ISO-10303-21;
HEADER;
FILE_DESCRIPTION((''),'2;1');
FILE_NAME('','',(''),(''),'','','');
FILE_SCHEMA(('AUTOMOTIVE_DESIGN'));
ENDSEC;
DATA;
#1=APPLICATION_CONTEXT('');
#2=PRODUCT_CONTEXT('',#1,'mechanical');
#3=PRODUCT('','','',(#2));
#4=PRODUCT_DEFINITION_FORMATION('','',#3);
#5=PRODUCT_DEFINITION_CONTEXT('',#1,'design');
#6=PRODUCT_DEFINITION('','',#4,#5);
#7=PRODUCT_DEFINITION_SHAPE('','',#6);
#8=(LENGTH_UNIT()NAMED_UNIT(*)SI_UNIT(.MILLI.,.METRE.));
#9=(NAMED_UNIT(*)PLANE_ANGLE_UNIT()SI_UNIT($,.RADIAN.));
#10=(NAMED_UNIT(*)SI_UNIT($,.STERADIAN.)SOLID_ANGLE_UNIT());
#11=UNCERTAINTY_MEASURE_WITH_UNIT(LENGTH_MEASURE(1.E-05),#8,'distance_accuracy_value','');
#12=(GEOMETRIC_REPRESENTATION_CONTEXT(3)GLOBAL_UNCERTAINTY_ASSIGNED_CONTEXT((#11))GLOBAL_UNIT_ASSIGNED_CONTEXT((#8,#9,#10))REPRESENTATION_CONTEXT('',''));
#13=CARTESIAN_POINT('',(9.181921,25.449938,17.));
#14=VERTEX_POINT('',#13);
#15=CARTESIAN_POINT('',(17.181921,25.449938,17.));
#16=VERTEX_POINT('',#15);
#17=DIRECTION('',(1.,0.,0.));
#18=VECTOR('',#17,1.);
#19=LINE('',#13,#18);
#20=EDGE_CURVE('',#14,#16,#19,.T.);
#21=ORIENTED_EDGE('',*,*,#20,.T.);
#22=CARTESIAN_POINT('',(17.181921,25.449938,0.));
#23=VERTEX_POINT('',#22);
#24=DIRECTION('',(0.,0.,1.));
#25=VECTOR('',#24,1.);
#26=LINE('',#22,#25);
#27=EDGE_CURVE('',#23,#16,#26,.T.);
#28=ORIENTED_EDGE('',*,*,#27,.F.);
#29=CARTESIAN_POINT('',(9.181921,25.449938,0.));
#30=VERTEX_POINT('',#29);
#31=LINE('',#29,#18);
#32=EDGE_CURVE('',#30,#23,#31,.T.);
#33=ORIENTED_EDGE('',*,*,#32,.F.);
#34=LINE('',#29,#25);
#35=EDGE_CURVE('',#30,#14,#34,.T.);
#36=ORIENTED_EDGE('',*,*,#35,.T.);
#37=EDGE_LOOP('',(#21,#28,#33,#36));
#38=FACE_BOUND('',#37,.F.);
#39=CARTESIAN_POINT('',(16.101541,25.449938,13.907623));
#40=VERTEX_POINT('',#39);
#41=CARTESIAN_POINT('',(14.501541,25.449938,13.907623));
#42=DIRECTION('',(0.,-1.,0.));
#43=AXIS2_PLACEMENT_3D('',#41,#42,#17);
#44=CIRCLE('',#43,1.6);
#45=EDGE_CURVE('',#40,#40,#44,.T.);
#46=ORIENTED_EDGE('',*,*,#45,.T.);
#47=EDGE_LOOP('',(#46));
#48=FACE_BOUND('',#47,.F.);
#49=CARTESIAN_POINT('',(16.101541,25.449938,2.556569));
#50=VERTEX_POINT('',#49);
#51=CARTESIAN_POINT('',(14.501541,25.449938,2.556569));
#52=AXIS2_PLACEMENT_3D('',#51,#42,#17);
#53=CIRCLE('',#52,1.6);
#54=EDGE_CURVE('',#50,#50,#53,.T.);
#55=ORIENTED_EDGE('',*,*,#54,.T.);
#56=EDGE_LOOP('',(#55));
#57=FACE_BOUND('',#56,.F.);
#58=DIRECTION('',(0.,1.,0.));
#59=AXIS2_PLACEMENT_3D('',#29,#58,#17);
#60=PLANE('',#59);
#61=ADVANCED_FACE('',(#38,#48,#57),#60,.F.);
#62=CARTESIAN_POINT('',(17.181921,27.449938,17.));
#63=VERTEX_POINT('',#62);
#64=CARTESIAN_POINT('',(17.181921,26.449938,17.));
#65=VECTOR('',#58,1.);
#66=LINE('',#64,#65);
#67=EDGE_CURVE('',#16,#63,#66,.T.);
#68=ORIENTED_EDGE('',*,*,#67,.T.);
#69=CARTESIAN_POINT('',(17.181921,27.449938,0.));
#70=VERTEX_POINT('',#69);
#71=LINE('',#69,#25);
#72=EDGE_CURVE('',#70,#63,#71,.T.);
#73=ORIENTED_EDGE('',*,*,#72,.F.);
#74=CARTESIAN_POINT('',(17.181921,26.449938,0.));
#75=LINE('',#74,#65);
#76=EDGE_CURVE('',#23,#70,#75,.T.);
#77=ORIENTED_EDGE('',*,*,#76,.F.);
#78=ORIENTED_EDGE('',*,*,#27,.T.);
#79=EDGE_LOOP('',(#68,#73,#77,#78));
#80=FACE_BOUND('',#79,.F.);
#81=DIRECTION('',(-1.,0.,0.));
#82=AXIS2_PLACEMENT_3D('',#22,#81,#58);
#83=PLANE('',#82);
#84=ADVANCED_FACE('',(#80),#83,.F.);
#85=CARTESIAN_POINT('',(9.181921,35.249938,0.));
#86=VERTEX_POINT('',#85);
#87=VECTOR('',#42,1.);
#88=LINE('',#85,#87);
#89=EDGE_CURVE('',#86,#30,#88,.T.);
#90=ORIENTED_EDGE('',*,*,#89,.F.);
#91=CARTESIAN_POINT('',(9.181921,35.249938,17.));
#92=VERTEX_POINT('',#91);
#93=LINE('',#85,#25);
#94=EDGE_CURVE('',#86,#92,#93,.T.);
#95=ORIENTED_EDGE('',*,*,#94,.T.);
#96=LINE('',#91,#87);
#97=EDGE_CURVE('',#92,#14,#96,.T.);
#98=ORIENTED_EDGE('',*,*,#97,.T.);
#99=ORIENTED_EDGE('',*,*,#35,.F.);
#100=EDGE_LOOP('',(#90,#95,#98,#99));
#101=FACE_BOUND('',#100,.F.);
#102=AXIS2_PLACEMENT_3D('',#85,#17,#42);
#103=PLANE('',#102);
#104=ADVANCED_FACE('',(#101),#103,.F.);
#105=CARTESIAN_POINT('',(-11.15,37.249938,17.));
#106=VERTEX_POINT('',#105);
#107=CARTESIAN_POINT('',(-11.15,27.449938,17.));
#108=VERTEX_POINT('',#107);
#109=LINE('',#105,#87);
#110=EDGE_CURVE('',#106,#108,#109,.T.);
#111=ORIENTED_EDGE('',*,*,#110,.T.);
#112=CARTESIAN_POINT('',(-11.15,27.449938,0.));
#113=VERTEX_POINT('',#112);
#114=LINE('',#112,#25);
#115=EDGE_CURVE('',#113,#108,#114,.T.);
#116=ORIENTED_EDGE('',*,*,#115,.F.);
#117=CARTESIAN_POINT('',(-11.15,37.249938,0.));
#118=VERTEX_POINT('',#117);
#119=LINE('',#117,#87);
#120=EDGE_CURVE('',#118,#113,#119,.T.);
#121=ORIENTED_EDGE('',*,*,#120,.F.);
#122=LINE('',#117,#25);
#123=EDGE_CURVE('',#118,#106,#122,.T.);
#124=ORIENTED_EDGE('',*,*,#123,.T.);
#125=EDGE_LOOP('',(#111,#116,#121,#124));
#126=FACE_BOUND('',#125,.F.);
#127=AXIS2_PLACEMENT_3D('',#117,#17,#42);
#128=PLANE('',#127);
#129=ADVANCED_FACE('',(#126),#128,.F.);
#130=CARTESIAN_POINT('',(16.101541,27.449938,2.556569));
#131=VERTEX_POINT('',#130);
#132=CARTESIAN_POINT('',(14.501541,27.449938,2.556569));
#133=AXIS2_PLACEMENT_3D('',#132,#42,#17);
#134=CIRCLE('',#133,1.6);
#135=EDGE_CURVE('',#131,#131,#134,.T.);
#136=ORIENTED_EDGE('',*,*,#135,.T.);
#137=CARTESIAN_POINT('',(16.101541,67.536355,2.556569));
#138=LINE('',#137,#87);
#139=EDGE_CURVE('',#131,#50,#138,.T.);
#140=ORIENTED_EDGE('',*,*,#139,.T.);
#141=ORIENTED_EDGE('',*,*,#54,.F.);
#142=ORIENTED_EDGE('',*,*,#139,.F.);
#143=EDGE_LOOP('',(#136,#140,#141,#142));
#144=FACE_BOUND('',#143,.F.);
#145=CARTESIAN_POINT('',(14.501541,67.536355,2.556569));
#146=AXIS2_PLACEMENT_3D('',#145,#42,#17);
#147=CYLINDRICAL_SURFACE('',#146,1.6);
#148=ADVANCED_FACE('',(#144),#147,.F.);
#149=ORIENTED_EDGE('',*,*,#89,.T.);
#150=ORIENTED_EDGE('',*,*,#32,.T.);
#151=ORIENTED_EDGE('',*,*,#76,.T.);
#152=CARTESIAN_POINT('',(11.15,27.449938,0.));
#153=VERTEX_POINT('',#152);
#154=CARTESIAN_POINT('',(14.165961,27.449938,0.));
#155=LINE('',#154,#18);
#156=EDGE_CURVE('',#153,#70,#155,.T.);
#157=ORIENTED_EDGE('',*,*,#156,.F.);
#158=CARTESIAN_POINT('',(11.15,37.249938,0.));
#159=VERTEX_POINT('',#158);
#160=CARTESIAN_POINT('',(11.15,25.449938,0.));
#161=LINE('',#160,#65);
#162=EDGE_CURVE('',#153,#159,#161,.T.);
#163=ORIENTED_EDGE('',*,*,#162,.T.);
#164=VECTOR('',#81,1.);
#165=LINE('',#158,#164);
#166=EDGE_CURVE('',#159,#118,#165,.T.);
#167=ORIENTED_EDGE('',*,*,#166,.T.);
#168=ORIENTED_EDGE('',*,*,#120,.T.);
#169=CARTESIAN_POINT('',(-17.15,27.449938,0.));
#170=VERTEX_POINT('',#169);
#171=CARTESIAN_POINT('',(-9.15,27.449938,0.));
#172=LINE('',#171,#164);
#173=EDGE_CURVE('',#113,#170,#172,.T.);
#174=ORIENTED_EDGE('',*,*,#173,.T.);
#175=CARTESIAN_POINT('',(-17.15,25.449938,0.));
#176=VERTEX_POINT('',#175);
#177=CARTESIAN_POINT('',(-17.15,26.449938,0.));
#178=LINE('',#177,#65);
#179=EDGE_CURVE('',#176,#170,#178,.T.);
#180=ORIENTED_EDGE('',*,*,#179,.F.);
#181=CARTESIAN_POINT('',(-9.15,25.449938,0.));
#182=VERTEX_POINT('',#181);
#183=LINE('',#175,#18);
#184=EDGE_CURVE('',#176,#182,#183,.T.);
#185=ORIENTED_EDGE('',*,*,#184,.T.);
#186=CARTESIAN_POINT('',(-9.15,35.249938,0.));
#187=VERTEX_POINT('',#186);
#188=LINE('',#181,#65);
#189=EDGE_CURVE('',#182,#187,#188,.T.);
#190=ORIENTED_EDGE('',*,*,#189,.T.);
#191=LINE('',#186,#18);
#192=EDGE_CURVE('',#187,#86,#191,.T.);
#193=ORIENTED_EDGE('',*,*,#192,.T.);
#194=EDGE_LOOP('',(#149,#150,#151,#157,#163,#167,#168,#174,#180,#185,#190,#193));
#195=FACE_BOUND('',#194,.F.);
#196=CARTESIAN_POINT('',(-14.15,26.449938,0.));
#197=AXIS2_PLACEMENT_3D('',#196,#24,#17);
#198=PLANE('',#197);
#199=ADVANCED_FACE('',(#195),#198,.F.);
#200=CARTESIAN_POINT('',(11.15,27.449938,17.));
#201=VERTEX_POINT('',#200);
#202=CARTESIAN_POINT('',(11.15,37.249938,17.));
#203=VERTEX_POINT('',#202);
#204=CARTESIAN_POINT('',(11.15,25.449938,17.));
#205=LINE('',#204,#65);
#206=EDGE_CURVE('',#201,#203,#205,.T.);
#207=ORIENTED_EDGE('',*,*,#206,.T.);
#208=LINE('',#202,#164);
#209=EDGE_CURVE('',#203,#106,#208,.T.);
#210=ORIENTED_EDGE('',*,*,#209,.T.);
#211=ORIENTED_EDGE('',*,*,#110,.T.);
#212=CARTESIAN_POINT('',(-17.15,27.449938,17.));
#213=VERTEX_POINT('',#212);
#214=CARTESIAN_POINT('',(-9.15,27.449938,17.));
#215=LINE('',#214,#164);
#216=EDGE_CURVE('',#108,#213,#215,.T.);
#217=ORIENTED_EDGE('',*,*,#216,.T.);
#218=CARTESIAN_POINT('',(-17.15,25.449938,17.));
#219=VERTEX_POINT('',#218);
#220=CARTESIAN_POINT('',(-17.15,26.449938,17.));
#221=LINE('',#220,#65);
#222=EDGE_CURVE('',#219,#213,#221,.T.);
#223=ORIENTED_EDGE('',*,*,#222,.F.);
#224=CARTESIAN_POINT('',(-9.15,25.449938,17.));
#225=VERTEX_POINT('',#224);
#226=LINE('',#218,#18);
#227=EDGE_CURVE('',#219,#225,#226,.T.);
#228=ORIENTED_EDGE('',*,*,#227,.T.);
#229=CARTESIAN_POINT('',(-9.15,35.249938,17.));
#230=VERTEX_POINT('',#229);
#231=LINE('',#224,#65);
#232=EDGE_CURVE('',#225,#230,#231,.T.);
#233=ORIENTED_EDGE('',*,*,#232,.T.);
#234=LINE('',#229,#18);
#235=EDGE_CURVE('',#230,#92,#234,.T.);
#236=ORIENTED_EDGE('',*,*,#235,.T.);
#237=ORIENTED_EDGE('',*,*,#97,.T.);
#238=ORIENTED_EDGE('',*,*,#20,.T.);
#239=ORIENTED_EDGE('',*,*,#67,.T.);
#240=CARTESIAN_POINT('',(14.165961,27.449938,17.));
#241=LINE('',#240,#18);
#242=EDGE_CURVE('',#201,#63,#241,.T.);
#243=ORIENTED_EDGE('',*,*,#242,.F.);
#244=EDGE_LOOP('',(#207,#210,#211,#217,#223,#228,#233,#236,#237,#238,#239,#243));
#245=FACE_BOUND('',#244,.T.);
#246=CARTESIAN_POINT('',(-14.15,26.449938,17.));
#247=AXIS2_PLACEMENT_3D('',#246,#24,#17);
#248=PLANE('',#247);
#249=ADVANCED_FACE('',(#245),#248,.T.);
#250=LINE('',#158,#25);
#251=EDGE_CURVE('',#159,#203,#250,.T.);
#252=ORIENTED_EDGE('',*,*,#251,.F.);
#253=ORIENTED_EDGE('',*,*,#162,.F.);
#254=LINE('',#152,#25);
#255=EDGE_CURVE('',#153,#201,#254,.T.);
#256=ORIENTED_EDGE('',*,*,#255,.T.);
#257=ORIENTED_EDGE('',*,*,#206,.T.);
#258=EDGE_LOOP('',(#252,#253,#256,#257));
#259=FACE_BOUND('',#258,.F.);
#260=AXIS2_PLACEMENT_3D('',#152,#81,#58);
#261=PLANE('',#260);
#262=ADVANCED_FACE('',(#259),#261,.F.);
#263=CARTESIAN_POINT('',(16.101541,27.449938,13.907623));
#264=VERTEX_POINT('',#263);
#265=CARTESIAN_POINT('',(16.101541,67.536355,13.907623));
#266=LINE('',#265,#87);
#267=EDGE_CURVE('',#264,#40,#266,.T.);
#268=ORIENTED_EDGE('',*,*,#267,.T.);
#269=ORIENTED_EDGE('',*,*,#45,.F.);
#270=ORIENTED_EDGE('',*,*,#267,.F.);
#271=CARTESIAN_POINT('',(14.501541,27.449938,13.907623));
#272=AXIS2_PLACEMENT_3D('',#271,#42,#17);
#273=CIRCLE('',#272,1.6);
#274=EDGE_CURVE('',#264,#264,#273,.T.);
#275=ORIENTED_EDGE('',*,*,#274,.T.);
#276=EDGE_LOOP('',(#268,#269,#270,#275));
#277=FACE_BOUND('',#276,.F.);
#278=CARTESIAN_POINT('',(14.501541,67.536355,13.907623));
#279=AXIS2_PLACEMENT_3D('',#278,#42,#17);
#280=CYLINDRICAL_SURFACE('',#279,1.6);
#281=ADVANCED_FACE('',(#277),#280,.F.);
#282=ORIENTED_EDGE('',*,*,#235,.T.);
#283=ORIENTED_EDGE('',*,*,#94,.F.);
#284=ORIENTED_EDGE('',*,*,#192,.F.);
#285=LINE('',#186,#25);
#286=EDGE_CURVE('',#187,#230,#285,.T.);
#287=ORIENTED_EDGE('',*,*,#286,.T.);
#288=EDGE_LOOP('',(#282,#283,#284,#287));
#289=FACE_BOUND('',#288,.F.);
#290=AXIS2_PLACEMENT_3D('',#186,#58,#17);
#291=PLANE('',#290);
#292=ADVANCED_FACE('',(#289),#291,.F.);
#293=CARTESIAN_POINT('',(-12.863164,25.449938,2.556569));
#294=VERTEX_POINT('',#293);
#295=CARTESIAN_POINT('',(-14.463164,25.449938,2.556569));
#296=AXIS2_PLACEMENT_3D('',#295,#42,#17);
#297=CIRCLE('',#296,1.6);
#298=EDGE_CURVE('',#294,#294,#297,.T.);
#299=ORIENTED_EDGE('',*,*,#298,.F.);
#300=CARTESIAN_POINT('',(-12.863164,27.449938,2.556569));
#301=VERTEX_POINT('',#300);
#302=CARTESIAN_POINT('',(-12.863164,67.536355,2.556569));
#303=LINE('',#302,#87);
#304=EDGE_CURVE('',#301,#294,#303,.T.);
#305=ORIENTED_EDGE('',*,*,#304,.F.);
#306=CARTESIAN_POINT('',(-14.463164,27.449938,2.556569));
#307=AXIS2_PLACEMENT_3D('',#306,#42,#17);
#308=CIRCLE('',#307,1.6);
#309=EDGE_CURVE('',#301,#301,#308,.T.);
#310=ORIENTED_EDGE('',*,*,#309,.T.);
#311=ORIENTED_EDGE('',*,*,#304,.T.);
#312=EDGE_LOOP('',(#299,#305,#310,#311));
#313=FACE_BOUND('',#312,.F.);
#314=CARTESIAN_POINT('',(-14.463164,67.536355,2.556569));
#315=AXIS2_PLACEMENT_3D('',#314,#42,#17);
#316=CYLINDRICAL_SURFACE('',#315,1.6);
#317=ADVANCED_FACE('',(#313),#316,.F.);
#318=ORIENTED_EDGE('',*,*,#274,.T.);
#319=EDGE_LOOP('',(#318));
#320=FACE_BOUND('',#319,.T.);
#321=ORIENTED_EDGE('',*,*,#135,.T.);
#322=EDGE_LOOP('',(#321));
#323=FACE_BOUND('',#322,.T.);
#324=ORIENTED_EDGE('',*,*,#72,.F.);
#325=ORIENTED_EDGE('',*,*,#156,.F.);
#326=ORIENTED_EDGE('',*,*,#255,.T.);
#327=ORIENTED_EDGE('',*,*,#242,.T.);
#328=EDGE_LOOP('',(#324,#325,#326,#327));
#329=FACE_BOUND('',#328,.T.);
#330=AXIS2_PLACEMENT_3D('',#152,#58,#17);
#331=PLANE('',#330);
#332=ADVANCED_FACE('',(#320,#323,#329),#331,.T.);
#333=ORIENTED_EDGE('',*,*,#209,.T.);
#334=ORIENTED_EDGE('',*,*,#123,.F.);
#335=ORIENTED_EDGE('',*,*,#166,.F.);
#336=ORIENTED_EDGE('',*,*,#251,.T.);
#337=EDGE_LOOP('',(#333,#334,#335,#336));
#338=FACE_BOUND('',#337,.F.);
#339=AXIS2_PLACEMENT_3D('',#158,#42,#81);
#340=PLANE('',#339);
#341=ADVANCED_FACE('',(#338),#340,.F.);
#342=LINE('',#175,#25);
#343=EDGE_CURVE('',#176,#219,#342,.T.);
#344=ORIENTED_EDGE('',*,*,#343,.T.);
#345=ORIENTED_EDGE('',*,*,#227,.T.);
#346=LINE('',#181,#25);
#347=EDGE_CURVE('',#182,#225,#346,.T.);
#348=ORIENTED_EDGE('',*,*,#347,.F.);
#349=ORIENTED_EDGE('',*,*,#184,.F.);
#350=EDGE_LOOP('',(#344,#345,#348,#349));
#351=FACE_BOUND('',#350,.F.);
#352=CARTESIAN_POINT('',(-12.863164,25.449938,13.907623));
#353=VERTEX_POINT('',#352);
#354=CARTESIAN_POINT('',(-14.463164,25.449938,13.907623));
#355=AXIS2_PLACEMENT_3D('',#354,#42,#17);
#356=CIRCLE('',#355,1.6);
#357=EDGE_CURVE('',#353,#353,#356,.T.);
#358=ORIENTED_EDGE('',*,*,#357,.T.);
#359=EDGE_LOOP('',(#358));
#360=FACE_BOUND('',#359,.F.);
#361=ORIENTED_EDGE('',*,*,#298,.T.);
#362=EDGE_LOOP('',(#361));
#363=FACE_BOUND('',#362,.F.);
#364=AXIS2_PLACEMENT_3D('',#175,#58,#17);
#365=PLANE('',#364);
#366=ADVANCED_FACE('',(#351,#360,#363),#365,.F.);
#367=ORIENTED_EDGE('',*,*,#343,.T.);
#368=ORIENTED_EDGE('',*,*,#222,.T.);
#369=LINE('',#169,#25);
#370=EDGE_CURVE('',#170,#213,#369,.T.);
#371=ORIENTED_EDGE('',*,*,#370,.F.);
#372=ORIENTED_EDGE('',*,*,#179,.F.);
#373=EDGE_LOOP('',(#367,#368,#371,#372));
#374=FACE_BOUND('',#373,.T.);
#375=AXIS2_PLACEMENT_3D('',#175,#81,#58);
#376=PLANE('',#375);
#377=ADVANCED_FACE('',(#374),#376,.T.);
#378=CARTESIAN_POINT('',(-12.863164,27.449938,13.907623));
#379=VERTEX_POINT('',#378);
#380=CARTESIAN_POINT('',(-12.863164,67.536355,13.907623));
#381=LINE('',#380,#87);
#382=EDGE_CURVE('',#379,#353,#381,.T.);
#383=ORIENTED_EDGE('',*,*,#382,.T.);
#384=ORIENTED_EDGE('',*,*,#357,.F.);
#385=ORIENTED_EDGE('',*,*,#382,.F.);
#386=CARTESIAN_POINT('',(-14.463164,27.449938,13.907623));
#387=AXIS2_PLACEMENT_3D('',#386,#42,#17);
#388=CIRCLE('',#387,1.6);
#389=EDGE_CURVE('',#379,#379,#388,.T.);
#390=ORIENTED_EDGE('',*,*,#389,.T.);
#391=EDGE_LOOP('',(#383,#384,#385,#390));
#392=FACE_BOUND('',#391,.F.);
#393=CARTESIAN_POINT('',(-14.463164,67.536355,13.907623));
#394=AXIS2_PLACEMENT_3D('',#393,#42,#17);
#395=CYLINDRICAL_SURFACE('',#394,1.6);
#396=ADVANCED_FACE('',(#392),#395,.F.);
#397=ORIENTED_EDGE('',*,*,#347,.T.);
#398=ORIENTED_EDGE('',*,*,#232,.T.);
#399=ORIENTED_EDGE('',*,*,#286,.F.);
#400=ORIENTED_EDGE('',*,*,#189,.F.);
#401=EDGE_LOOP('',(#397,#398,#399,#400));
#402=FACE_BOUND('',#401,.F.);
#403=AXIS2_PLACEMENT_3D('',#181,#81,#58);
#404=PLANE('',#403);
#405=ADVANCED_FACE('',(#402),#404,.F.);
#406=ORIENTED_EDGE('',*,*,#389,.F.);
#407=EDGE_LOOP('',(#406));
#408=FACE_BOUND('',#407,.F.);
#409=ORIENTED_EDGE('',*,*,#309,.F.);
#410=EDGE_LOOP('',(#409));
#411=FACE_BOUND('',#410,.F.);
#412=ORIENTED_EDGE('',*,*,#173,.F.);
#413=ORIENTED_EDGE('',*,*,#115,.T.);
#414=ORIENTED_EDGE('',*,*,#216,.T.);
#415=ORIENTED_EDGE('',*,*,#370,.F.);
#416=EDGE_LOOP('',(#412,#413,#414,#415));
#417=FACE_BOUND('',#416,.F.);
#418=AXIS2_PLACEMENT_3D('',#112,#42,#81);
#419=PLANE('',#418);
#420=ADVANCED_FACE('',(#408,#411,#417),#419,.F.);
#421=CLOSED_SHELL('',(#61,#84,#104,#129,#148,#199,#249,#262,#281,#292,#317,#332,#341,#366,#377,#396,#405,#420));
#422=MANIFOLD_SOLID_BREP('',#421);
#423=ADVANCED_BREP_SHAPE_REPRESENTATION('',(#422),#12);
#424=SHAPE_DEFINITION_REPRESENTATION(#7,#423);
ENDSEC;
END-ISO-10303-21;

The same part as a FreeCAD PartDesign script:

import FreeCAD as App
import Part
import Sketcher

V = App.Vector

doc = App.newDocument("Part")
params = doc.addObject("Spreadsheet::Sheet", "Params")
for row, (alias, value) in enumerate([
    ("sketch1_width", "8 mm"),
    ("sketch1_width2", "6 mm"),
    ("sketch1_height", "2 mm"),
    ("sketch1_width3", "22.3 mm"),
    ("sketch1_height2", "9.8 mm"),
    ("pad1_length", "17 mm"),
    ("sketch2_diameter", "3.2 mm"),
    ("hole_diameter", "3.2 mm"),
], start=1):
    params.set(f"A{row}", alias)
    params.set(f"B{row}", "=" + value)
    params.setAlias(f"B{row}", alias)

body = doc.addObject("PartDesign::Body", "Body")

# Sketch on XY plane
sketch1 = body.newObject("Sketcher::SketchObject", "Sketch")
sketch1.AttachmentSupport = (doc.getObject("XY_Plane"), [""])
sketch1.MapMode = "FlatFace"
sketch1.addGeometry([
    Part.LineSegment(V(-17.1, 27.4, 0), V(-17.1, 25.4, 0)),  # 0
    Part.LineSegment(V(-17.1, 25.4, 0), V(-9.2, 25.4, 0)),  # 1
    Part.LineSegment(V(-9.2, 25.4, 0), V(-9.2, 35.2, 0)),  # 2
    Part.LineSegment(V(-9.2, 35.2, 0), V(9.2, 35.2, 0)),  # 3
    Part.LineSegment(V(9.2, 35.2, 0), V(9.2, 25.4, 0)),  # 4
    Part.LineSegment(V(9.2, 25.4, 0), V(17.2, 25.4, 0)),  # 5
    Part.LineSegment(V(17.2, 25.4, 0), V(17.2, 27.4, 0)),  # 6
    Part.LineSegment(V(17.2, 27.4, 0), V(11.2, 27.4, 0)),  # 7
    Part.LineSegment(V(11.2, 27.4, 0), V(11.2, 37.2, 0)),  # 8
    Part.LineSegment(V(11.2, 37.2, 0), V(-11.2, 37.2, 0)),  # 9
    Part.LineSegment(V(-11.2, 37.2, 0), V(-11.2, 27.4, 0)),  # 10
    Part.LineSegment(V(-11.2, 27.4, 0), V(-17.1, 27.4, 0)),  # 11
], False)
sketch1.addConstraint([
    Sketcher.Constraint("Coincident", 0, 2, 1, 1),
    Sketcher.Constraint("Coincident", 1, 2, 2, 1),
    Sketcher.Constraint("Coincident", 2, 2, 3, 1),
    Sketcher.Constraint("Coincident", 3, 2, 4, 1),
    Sketcher.Constraint("Coincident", 4, 2, 5, 1),
    Sketcher.Constraint("Coincident", 5, 2, 6, 1),
    Sketcher.Constraint("Coincident", 6, 2, 7, 1),
    Sketcher.Constraint("Coincident", 7, 2, 8, 1),
    Sketcher.Constraint("Coincident", 8, 2, 9, 1),
    Sketcher.Constraint("Coincident", 9, 2, 10, 1),
    Sketcher.Constraint("Coincident", 10, 2, 11, 1),
    Sketcher.Constraint("Coincident", 11, 2, 0, 1),
    Sketcher.Constraint("Vertical", 0),
    Sketcher.Constraint("Horizontal", 1),
    Sketcher.Constraint("Vertical", 2),
    Sketcher.Constraint("Horizontal", 3),
    Sketcher.Constraint("Vertical", 4),
    Sketcher.Constraint("Horizontal", 5),
    Sketcher.Constraint("Vertical", 6),
    Sketcher.Constraint("Horizontal", 7),
    Sketcher.Constraint("Vertical", 8),
    Sketcher.Constraint("Horizontal", 9),
    Sketcher.Constraint("Vertical", 10),
    Sketcher.Constraint("Horizontal", 11),
    Sketcher.Constraint("Symmetric", 7, 2, 10, 2, -2),
    Sketcher.Constraint("Horizontal", 1, 2, 4, 2),
    Sketcher.Constraint("Equal", 1, 5),
    Sketcher.Constraint("Equal", 4, 8),
    Sketcher.Constraint("DistanceX", 1, 1, 1, 2, 8.0),
    Sketcher.Constraint("DistanceX", 11, 2, 11, 1, 6.0),
    Sketcher.Constraint("DistanceY", 0, 2, 0, 1, 2.0),
    Sketcher.Constraint("DistanceX", 9, 2, 9, 1, 22.3),
    Sketcher.Constraint("DistanceY", 2, 1, 2, 2, 9.8),
    Sketcher.Constraint("DistanceX", 3, 1, 3, 2, 18.331921),
    Sketcher.Constraint("DistanceY", -1, 1, 0, 2, 25.449938),
])
sketch1.setExpression("Constraints[28]", "Params.sketch1_width")
sketch1.setExpression("Constraints[29]", "Params.sketch1_width2")
sketch1.setExpression("Constraints[30]", "Params.sketch1_height")
sketch1.setExpression("Constraints[31]", "Params.sketch1_width3")
sketch1.setExpression("Constraints[32]", "Params.sketch1_height2")
pad1 = body.newObject("PartDesign::Pad", "Pad")
pad1.Profile = sketch1
pad1.setExpression("Length", "Params.pad1_length")

# Sketch on XZ plane
sketch2 = body.newObject("Sketcher::SketchObject", "Sketch001")
sketch2.AttachmentSupport = (doc.getObject("XZ_Plane"), [""])
sketch2.MapMode = "FlatFace"
sketch2.AttachmentOffset = App.Placement(V(0, 0, -27.449938), App.Rotation())
sketch2.addGeometry([
    Part.Circle(V(14.5, 13.9, 0), V(0, 0, 1), 1.6),
    Part.Circle(V(14.5, 2.6, 0), V(0, 0, 1), 1.6),
    Part.Circle(V(-14.5, 2.6, 0), V(0, 0, 1), 1.6),
    Part.Circle(V(-14.5, 13.9, 0), V(0, 0, 1), 1.6),
], False)
sketch2.addConstraint([
    Sketcher.Constraint("Equal", 0, 1),
    Sketcher.Constraint("Equal", 1, 2),
    Sketcher.Constraint("Equal", 2, 3),
    Sketcher.Constraint("Horizontal", 1, 3, 2, 3),
    Sketcher.Constraint("Horizontal", 0, 3, 3, 3),
    Sketcher.Constraint("Vertical", 0, 3, 1, 3),
    Sketcher.Constraint("Vertical", 2, 3, 3, 3),
    Sketcher.Constraint("Diameter", 0, 3.2),
    Sketcher.Constraint("DistanceX", -1, 1, 0, 3, 14.501541),
    Sketcher.Constraint("DistanceY", -1, 1, 1, 3, 2.556569),
    Sketcher.Constraint("DistanceY", -1, 1, 0, 3, 13.907623),
    Sketcher.Constraint("DistanceX", 2, 3, -1, 1, 14.463164),
])
sketch2.setExpression("Constraints[7]", "Params.sketch2_diameter")
doc.recompute()
hole = body.newObject("PartDesign::Hole", "Hole")
hole.Profile = sketch2
hole.ThreadType = "None"
hole.setExpression("Diameter", "Params.hole_diameter")
hole.DepthType = "ThroughAll"
hole.Reversed = True

doc.recompute()
